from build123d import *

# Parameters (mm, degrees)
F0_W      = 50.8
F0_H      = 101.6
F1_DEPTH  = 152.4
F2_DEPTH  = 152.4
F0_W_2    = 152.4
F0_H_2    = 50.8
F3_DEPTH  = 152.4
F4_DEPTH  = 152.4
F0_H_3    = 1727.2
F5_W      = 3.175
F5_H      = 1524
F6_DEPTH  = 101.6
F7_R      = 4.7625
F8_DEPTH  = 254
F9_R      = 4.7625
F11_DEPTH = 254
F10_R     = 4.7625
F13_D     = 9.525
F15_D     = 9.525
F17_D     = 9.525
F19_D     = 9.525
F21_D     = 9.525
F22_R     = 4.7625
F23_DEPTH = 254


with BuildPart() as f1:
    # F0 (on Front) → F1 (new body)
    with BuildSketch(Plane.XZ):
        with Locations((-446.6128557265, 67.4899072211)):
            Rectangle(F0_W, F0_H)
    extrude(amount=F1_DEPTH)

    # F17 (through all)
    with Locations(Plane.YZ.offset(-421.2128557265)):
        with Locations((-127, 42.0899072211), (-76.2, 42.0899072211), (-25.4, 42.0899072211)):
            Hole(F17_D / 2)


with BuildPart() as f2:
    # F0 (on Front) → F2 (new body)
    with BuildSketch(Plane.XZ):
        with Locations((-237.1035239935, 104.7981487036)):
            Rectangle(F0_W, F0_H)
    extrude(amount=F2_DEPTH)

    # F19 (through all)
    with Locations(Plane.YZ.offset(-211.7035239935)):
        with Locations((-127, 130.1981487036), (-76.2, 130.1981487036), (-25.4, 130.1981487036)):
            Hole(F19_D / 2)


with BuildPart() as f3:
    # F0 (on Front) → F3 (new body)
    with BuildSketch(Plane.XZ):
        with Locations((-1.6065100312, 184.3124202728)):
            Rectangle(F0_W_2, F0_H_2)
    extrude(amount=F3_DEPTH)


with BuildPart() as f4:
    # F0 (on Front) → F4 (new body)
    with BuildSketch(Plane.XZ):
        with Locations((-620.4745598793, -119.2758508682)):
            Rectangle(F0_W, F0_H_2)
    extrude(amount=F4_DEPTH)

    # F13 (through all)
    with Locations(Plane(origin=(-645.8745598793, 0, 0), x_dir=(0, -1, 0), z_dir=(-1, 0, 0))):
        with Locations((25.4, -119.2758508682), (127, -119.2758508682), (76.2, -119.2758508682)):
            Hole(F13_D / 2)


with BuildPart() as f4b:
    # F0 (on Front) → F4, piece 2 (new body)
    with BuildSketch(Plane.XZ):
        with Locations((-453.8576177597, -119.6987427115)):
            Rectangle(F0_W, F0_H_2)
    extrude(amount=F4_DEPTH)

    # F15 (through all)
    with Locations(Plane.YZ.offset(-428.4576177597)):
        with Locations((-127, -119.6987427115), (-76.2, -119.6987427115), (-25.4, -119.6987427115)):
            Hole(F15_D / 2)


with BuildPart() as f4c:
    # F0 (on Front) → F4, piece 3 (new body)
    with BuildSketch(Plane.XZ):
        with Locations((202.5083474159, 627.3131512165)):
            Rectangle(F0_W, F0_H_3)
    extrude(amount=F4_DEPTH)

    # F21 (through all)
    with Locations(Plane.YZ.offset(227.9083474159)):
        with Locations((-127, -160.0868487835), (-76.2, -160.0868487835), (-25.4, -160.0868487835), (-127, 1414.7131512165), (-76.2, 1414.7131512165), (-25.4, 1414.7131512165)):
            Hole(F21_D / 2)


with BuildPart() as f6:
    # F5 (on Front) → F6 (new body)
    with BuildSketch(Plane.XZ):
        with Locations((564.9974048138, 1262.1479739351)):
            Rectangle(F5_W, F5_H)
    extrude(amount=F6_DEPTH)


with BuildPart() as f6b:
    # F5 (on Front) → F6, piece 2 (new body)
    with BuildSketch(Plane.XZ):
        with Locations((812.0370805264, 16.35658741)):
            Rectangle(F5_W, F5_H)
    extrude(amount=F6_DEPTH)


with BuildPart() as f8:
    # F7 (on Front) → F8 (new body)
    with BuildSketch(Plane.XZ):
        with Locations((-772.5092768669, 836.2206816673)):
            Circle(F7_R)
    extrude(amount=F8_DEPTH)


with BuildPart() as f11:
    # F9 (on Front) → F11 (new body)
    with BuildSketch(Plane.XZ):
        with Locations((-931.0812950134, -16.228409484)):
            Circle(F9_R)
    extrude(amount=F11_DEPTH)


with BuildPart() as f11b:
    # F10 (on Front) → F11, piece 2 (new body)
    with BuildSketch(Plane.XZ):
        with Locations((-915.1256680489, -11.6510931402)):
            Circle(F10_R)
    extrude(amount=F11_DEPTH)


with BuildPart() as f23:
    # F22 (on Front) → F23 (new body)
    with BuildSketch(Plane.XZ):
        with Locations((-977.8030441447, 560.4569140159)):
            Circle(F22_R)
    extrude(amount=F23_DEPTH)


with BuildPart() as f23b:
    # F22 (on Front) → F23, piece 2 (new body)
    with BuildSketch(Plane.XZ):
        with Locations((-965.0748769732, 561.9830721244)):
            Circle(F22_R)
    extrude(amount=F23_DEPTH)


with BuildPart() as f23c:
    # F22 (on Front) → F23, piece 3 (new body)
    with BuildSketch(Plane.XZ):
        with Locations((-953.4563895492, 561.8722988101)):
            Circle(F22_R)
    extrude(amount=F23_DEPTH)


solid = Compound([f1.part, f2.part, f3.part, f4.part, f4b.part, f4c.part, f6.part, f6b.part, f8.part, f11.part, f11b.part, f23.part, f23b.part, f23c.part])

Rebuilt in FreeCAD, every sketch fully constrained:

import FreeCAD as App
import Part
import Sketcher
from FreeCAD import Vector
Q = App.Units.Quantity

doc = App.newDocument("Part")
body = doc.addObject("PartDesign::Body", "Body")

# Sketch on XZ plane
sketch1 = body.newObject("Sketcher::SketchObject", "Sketch")
sketch1.AttachmentSupport = (doc.getObject("XZ_Plane"), [""])
sketch1.MapMode = "FlatFace"
sketch1.addGeometry(Part.LineSegment(Vector(-472, 118, 0), Vector(-472, 17, 0)), False)
sketch1.addGeometry(Part.LineSegment(Vector(-472, 17, 0), Vector(-421, 17, 0)), False)
sketch1.addGeometry(Part.LineSegment(Vector(-421, 17, 0), Vector(-421, 118, 0)), False)
sketch1.addGeometry(Part.LineSegment(Vector(-421, 118, 0), Vector(-472, 118, 0)), False)
sketch1.addConstraint(Sketcher.Constraint("Coincident", 0, 2, 1, 1))
sketch1.addConstraint(Sketcher.Constraint("Coincident", 1, 2, 2, 1))
sketch1.addConstraint(Sketcher.Constraint("Coincident", 2, 2, 3, 1))
sketch1.addConstraint(Sketcher.Constraint("Coincident", 3, 2, 0, 1))
sketch1.addConstraint(Sketcher.Constraint("Vertical", 0))
sketch1.addConstraint(Sketcher.Constraint("Horizontal", 1))
sketch1.addConstraint(Sketcher.Constraint("Vertical", 2))
sketch1.addConstraint(Sketcher.Constraint("Horizontal", 3))
sketch1.addConstraint(Sketcher.Constraint("DistanceX", 1, 1, 1, 2, Q("2 in")))
sketch1.addConstraint(Sketcher.Constraint("DistanceY", 0, 2, 0, 1, Q("4 in")))
sketch1.addConstraint(Sketcher.Constraint("DistanceX", 0, 2, -1, 1, 472.012856))
sketch1.addConstraint(Sketcher.Constraint("DistanceY", -1, 1, 0, 2, 16.689907))
pad1 = body.newObject("PartDesign::Pad", "Pad")
pad1.Profile = sketch1
pad1.Length = Q("6 in")

# Sketch on YZ plane
sketch2 = body.newObject("Sketcher::SketchObject", "Sketch001")
sketch2.AttachmentSupport = (doc.getObject("YZ_Plane"), [""])
sketch2.MapMode = "FlatFace"
sketch2.AttachmentOffset = App.Placement(Vector(0, 0, -421.212856), App.Rotation())
sketch2.addGeometry(Part.Circle(Vector(-127, 42.1, 0), Vector(0, 0, 1), 4.8), False)
sketch2.addGeometry(Part.Circle(Vector(-76.2, 42.1, 0), Vector(0, 0, 1), 4.8), False)
sketch2.addGeometry(Part.Circle(Vector(-25.4, 42.1, 0), Vector(0, 0, 1), 4.8), False)
sketch2.addConstraint(Sketcher.Constraint("Equal", 0, 1))
sketch2.addConstraint(Sketcher.Constraint("Equal", 1, 2))
sketch2.addConstraint(Sketcher.Constraint("Horizontal", 0, 3, 1, 3))
sketch2.addConstraint(Sketcher.Constraint("Horizontal", 1, 3, 2, 3))
sketch2.addConstraint(Sketcher.Constraint("Diameter", 0, Q("0.375 in")))
sketch2.addConstraint(Sketcher.Constraint("DistanceX", 0, 3, -1, 1, Q("5 in")))
sketch2.addConstraint(Sketcher.Constraint("DistanceX", 1, 3, -1, 1, Q("3 in")))
sketch2.addConstraint(Sketcher.Constraint("DistanceX", 2, 3, -1, 1, Q("1 in")))
sketch2.addConstraint(Sketcher.Constraint("DistanceY", -1, 1, 0, 3, 42.089907))
doc.recompute()
hole = body.newObject("PartDesign::Hole", "Hole")
hole.Profile = sketch2
hole.ThreadType = "None"
hole.Diameter = Q("0.375 in")
hole.DepthType = "ThroughAll"
body2 = doc.addObject("PartDesign::Body", "Body001")

# Sketch on XZ plane
sketch3 = body2.newObject("Sketcher::SketchObject", "Sketch002")
sketch3.AttachmentSupport = (doc.getObject("XZ_Plane001"), [""])
sketch3.MapMode = "FlatFace"
sketch3.addGeometry(Part.LineSegment(Vector(-263, 156, 0), Vector(-263, 54, 0)), False)
sketch3.addGeometry(Part.LineSegment(Vector(-263, 54, 0), Vector(-212, 54, 0)), False)
sketch3.addGeometry(Part.LineSegment(Vector(-212, 54, 0), Vector(-212, 156, 0)), False)
sketch3.addGeometry(Part.LineSegment(Vector(-212, 156, 0), Vector(-263, 156, 0)), False)
sketch3.addConstraint(Sketcher.Constraint("Coincident", 0, 2, 1, 1))
sketch3.addConstraint(Sketcher.Constraint("Coincident", 1, 2, 2, 1))
sketch3.addConstraint(Sketcher.Constraint("Coincident", 2, 2, 3, 1))
sketch3.addConstraint(Sketcher.Constraint("Coincident", 3, 2, 0, 1))
sketch3.addConstraint(Sketcher.Constraint("Vertical", 0))
sketch3.addConstraint(Sketcher.Constraint("Horizontal", 1))
sketch3.addConstraint(Sketcher.Constraint("Vertical", 2))
sketch3.addConstraint(Sketcher.Constraint("Horizontal", 3))
sketch3.addConstraint(Sketcher.Constraint("DistanceX", 1, 1, 1, 2, Q("2 in")))
sketch3.addConstraint(Sketcher.Constraint("DistanceY", 0, 2, 0, 1, Q("4 in")))
sketch3.addConstraint(Sketcher.Constraint("DistanceY", -1, 1, 0, 2, 53.998149))
sketch3.addConstraint(Sketcher.Constraint("DistanceX", 0, 2, -1, 1, 262.503524))
pad2 = body2.newObject("PartDesign::Pad", "Pad001")
pad2.Profile = sketch3
pad2.Length = Q("6 in")

# Sketch on YZ plane
sketch4 = body2.newObject("Sketcher::SketchObject", "Sketch003")
sketch4.AttachmentSupport = (doc.getObject("YZ_Plane001"), [""])
sketch4.MapMode = "FlatFace"
sketch4.AttachmentOffset = App.Placement(Vector(0, 0, -211.703524), App.Rotation())
sketch4.addGeometry(Part.Circle(Vector(-127, 130.2, 0), Vector(0, 0, 1), 4.8), False)
sketch4.addGeometry(Part.Circle(Vector(-76.2, 130.2, 0), Vector(0, 0, 1), 4.8), False)
sketch4.addGeometry(Part.Circle(Vector(-25.4, 130.2, 0), Vector(0, 0, 1), 4.8), False)
sketch4.addConstraint(Sketcher.Constraint("Equal", 0, 1))
sketch4.addConstraint(Sketcher.Constraint("Equal", 1, 2))
sketch4.addConstraint(Sketcher.Constraint("Horizontal", 0, 3, 1, 3))
sketch4.addConstraint(Sketcher.Constraint("Horizontal", 1, 3, 2, 3))
sketch4.addConstraint(Sketcher.Constraint("Diameter", 0, Q("0.375 in")))
sketch4.addConstraint(Sketcher.Constraint("DistanceX", 0, 3, -1, 1, Q("5 in")))
sketch4.addConstraint(Sketcher.Constraint("DistanceX", 1, 3, -1, 1, Q("3 in")))
sketch4.addConstraint(Sketcher.Constraint("DistanceX", 2, 3, -1, 1, Q("1 in")))
sketch4.addConstraint(Sketcher.Constraint("DistanceY", -1, 1, 0, 3, 130.198149))
doc.recompute()
hole2 = body2.newObject("PartDesign::Hole", "Hole001")
hole2.Profile = sketch4
hole2.ThreadType = "None"
hole2.Diameter = Q("0.375 in")
hole2.DepthType = "ThroughAll"
body3 = doc.addObject("PartDesign::Body", "Body002")

# Sketch on XZ plane
sketch5 = body3.newObject("Sketcher::SketchObject", "Sketch004")
sketch5.AttachmentSupport = (doc.getObject("XZ_Plane002"), [""])
sketch5.MapMode = "FlatFace"
sketch5.addGeometry(Part.LineSegment(Vector(-78, 210, 0), Vector(-78, 159, 0)), False)
sketch5.addGeometry(Part.LineSegment(Vector(-78, 159, 0), Vector(75, 159, 0)), False)
sketch5.addGeometry(Part.LineSegment(Vector(75, 159, 0), Vector(75, 210, 0)), False)
sketch5.addGeometry(Part.LineSegment(Vector(75, 210, 0), Vector(-78, 210, 0)), False)
sketch5.addConstraint(Sketcher.Constraint("Coincident", 0, 2, 1, 1))
sketch5.addConstraint(Sketcher.Constraint("Coincident", 1, 2, 2, 1))
sketch5.addConstraint(Sketcher.Constraint("Coincident", 2, 2, 3, 1))
sketch5.addConstraint(Sketcher.Constraint("Coincident", 3, 2, 0, 1))
sketch5.addConstraint(Sketcher.Constraint("Vertical", 0))
sketch5.addConstraint(Sketcher.Constraint("Horizontal", 1))
sketch5.addConstraint(Sketcher.Constraint("Vertical", 2))
sketch5.addConstraint(Sketcher.Constraint("Horizontal", 3))
sketch5.addConstraint(Sketcher.Constraint("DistanceX", 1, 1, 1, 2, Q("6 in")))
sketch5.addConstraint(Sketcher.Constraint("DistanceY", 0, 2, 0, 1, Q("2 in")))
sketch5.addConstraint(Sketcher.Constraint("DistanceX", 0, 2, -1, 1, 77.80651))
sketch5.addConstraint(Sketcher.Constraint("DistanceY", -1, 1, 0, 2, 158.91242))
pad3 = body3.newObject("PartDesign::Pad", "Pad002")
pad3.Profile = sketch5
pad3.Length = Q("6 in")
body4 = doc.addObject("PartDesign::Body", "Body003")

# Sketch on XZ plane
sketch6 = body4.newObject("Sketcher::SketchObject", "Sketch005")
sketch6.AttachmentSupport = (doc.getObject("XZ_Plane003"), [""])
sketch6.MapMode = "FlatFace"
sketch6.addGeometry(Part.LineSegment(Vector(-646, -94, 0), Vector(-646, -145, 0)), False)
sketch6.addGeometry(Part.LineSegment(Vector(-646, -145, 0), Vector(-595, -145, 0)), False)
sketch6.addGeometry(Part.LineSegment(Vector(-595, -145, 0), Vector(-595, -94, 0)), False)
sketch6.addGeometry(Part.LineSegment(Vector(-595, -94, 0), Vector(-646, -94, 0)), False)
sketch6.addConstraint(Sketcher.Constraint("Coincident", 0, 2, 1, 1))
sketch6.addConstraint(Sketcher.Constraint("Coincident", 1, 2, 2, 1))
sketch6.addConstraint(Sketcher.Constraint("Coincident", 2, 2, 3, 1))
sketch6.addConstraint(Sketcher.Constraint("Coincident", 3, 2, 0, 1))
sketch6.addConstraint(Sketcher.Constraint("Vertical", 0))
sketch6.addConstraint(Sketcher.Constraint("Horizontal", 1))
sketch6.addConstraint(Sketcher.Constraint("Vertical", 2))
sketch6.addConstraint(Sketcher.Constraint("Horizontal", 3))
sketch6.addConstraint(Sketcher.Constraint("Equal", 3, 0))
sketch6.addConstraint(Sketcher.Constraint("DistanceX", 1, 1, 1, 2, Q("2 in")))
sketch6.addConstraint(Sketcher.Constraint("DistanceX", 0, 2, -1, 1, 645.87456))
sketch6.addConstraint(Sketcher.Constraint("DistanceY", 0, 2, -1, 1, 144.675851))
pad4 = body4.newObject("PartDesign::Pad", "Pad003")
pad4.Profile = sketch6
pad4.Length = Q("6 in")

# Sketch on YZ plane
sketch7 = body4.newObject("Sketcher::SketchObject", "Sketch006")
sketch7.AttachmentSupport = (doc.getObject("YZ_Plane003"), [""])
sketch7.MapMode = "FlatFace"
sketch7.AttachmentOffset = App.Placement(Vector(0, 0, -645.87456), App.Rotation())
sketch7.addGeometry(Part.Circle(Vector(-25.4, -119.3, 0), Vector(0, 0, 1), 4.8), False)
sketch7.addGeometry(Part.Circle(Vector(-127, -119.3, 0), Vector(0, 0, 1), 4.8), False)
sketch7.addGeometry(Part.Circle(Vector(-76.2, -119.3, 0), Vector(0, 0, 1), 4.8), False)
sketch7.addConstraint(Sketcher.Constraint("Equal", 0, 1))
sketch7.addConstraint(Sketcher.Constraint("Equal", 1, 2))
sketch7.addConstraint(Sketcher.Constraint("Horizontal", 0, 3, 1, 3))
sketch7.addConstraint(Sketcher.Constraint("Horizontal", 1, 3, 2, 3))
sketch7.addConstraint(Sketcher.Constraint("Diameter", 0, Q("0.375 in")))
sketch7.addConstraint(Sketcher.Constraint("DistanceX", 0, 3, -1, 1, Q("1 in")))
sketch7.addConstraint(Sketcher.Constraint("DistanceX", 1, 3, -1, 1, Q("5 in")))
sketch7.addConstraint(Sketcher.Constraint("DistanceX", 2, 3, -1, 1, Q("3 in")))
sketch7.addConstraint(Sketcher.Constraint("DistanceY", 0, 3, -1, 1, 119.275851))
doc.recompute()
hole3 = body4.newObject("PartDesign::Hole", "Hole002")
hole3.Profile = sketch7
hole3.ThreadType = "None"
hole3.Diameter = Q("0.375 in")
hole3.DepthType = "ThroughAll"
hole3.Reversed = True
body5 = doc.addObject("PartDesign::Body", "Body004")

# Sketch on XZ plane
sketch8 = body5.newObject("Sketcher::SketchObject", "Sketch007")
sketch8.AttachmentSupport = (doc.getObject("XZ_Plane004"), [""])
sketch8.MapMode = "FlatFace"
sketch8.addGeometry(Part.LineSegment(Vector(-479, -94, 0), Vector(-479, -145, 0)), False)
sketch8.addGeometry(Part.LineSegment(Vector(-479, -145, 0), Vector(-428, -145, 0)), False)
sketch8.addGeometry(Part.LineSegment(Vector(-428, -145, 0), Vector(-428, -94, 0)), False)
sketch8.addGeometry(Part.LineSegment(Vector(-428, -94, 0), Vector(-479, -94, 0)), False)
sketch8.addConstraint(Sketcher.Constraint("Coincident", 0, 2, 1, 1))
sketch8.addConstraint(Sketcher.Constraint("Coincident", 1, 2, 2, 1))
sketch8.addConstraint(Sketcher.Constraint("Coincident", 2, 2, 3, 1))
sketch8.addConstraint(Sketcher.Constraint("Coincident", 3, 2, 0, 1))
sketch8.addConstraint(Sketcher.Constraint("Vertical", 0))
sketch8.addConstraint(Sketcher.Constraint("Horizontal", 1))
sketch8.addConstraint(Sketcher.Constraint("Vertical", 2))
sketch8.addConstraint(Sketcher.Constraint("Horizontal", 3))
sketch8.addConstraint(Sketcher.Constraint("Equal", 3, 0))
sketch8.addConstraint(Sketcher.Constraint("DistanceX", 1, 1, 1, 2, Q("2 in")))
sketch8.addConstraint(Sketcher.Constraint("DistanceX", 0, 2, -1, 1, 479.257618))
sketch8.addConstraint(Sketcher.Constraint("DistanceY", 0, 2, -1, 1, 145.098743))
pad5 = body5.newObject("PartDesign::Pad", "Pad004")
pad5.Profile = sketch8
pad5.Length = Q("6 in")

# Sketch on YZ plane
sketch9 = body5.newObject("Sketcher::SketchObject", "Sketch008")
sketch9.AttachmentSupport = (doc.getObject("YZ_Plane004"), [""])
sketch9.MapMode = "FlatFace"
sketch9.AttachmentOffset = App.Placement(Vector(0, 0, -428.457618), App.Rotation())
sketch9.addGeometry(Part.Circle(Vector(-127, -119.7, 0), Vector(0, 0, 1), 4.8), False)
sketch9.addGeometry(Part.Circle(Vector(-76.2, -119.7, 0), Vector(0, 0, 1), 4.8), False)
sketch9.addGeometry(Part.Circle(Vector(-25.4, -119.7, 0), Vector(0, 0, 1), 4.8), False)
sketch9.addConstraint(Sketcher.Constraint("Equal", 0, 1))
sketch9.addConstraint(Sketcher.Constraint("Equal", 1, 2))
sketch9.addConstraint(Sketcher.Constraint("Horizontal", 0, 3, 1, 3))
sketch9.addConstraint(Sketcher.Constraint("Horizontal", 1, 3, 2, 3))
sketch9.addConstraint(Sketcher.Constraint("Diameter", 0, Q("0.375 in")))
sketch9.addConstraint(Sketcher.Constraint("DistanceX", 0, 3, -1, 1, Q("5 in")))
sketch9.addConstraint(Sketcher.Constraint("DistanceX", 1, 3, -1, 1, Q("3 in")))
sketch9.addConstraint(Sketcher.Constraint("DistanceX", 2, 3, -1, 1, Q("1 in")))
sketch9.addConstraint(Sketcher.Constraint("DistanceY", 0, 3, -1, 1, 119.698743))
doc.recompute()
hole4 = body5.newObject("PartDesign::Hole", "Hole003")
hole4.Profile = sketch9
hole4.ThreadType = "None"
hole4.Diameter = Q("0.375 in")
hole4.DepthType = "ThroughAll"
body6 = doc.addObject("PartDesign::Body", "Body005")

# Sketch on XZ plane
sketch10 = body6.newObject("Sketcher::SketchObject", "Sketch009")
sketch10.AttachmentSupport = (doc.getObject("XZ_Plane005"), [""])
sketch10.MapMode = "FlatFace"
sketch10.addGeometry(Part.LineSegment(Vector(177, 1491, 0), Vector(177, -236, 0)), False)
sketch10.addGeometry(Part.LineSegment(Vector(177, -236, 0), Vector(228, -236, 0)), False)
sketch10.addGeometry(Part.LineSegment(Vector(228, -236, 0), Vector(228, 1491, 0)), False)
sketch10.addGeometry(Part.LineSegment(Vector(228, 1491, 0), Vector(177, 1491, 0)), False)
sketch10.addConstraint(Sketcher.Constraint("Coincident", 0, 2, 1, 1))
sketch10.addConstraint(Sketcher.Constraint("Coincident", 1, 2, 2, 1))
sketch10.addConstraint(Sketcher.Constraint("Coincident", 2, 2, 3, 1))
sketch10.addConstraint(Sketcher.Constraint("Coincident", 3, 2, 0, 1))
sketch10.addConstraint(Sketcher.Constraint("Vertical", 0))
sketch10.addConstraint(Sketcher.Constraint("Horizontal", 1))
sketch10.addConstraint(Sketcher.Constraint("Vertical", 2))
sketch10.addConstraint(Sketcher.Constraint("Horizontal", 3))
sketch10.addConstraint(Sketcher.Constraint("DistanceX", 1, 1, 1, 2, Q("2 in")))
sketch10.addConstraint(Sketcher.Constraint("DistanceY", 0, 2, 0, 1, Q("68 in")))
sketch10.addConstraint(Sketcher.Constraint("DistanceY", 0, 2, -1, 1, 236.286849))
sketch10.addConstraint(Sketcher.Constraint("DistanceX", -1, 1, 0, 2, 177.108347))
pad6 = body6.newObject("PartDesign::Pad", "Pad005")
pad6.Profile = sketch10
pad6.Length = Q("6 in")

# Sketch on YZ plane
sketch11 = body6.newObject("Sketcher::SketchObject", "Sketch010")
sketch11.AttachmentSupport = (doc.getObject("YZ_Plane005"), [""])
sketch11.MapMode = "FlatFace"
sketch11.AttachmentOffset = App.Placement(Vector(0, 0, 227.908347), App.Rotation())
sketch11.addGeometry(Part.Circle(Vector(-127, -160.1, 0), Vector(0, 0, 1), 4.8), False)
sketch11.addGeometry(Part.Circle(Vector(-76.2, -160.1, 0), Vector(0, 0, 1), 4.8), False)
sketch11.addGeometry(Part.Circle(Vector(-25.4, -160.1, 0), Vector(0, 0, 1), 4.8), False)
sketch11.addGeometry(Part.Circle(Vector(-127, 1414.7, 0), Vector(0, 0, 1), 4.8), False)
sketch11.addGeometry(Part.Circle(Vector(-76.2, 1414.7, 0), Vector(0, 0, 1), 4.8), False)
sketch11.addGeometry(Part.Circle(Vector(-25.4, 1414.7, 0), Vector(0, 0, 1), 4.8), False)
sketch11.addConstraint(Sketcher.Constraint("Equal", 0, 1))
sketch11.addConstraint(Sketcher.Constraint("Equal", 1, 2))
sketch11.addConstraint(Sketcher.Constraint("Equal", 2, 3))
sketch11.addConstraint(Sketcher.Constraint("Equal", 3, 4))
sketch11.addConstraint(Sketcher.Constraint("Equal", 4, 5))
sketch11.addConstraint(Sketcher.Constraint("Horizontal", 0, 3, 1, 3))
sketch11.addConstraint(Sketcher.Constraint("Horizontal", 1, 3, 2, 3))
sketch11.addConstraint(Sketcher.Constraint("Horizontal", 3, 3, 4, 3))
sketch11.addConstraint(Sketcher.Constraint("Horizontal", 4, 3, 5, 3))
sketch11.addConstraint(Sketcher.Constraint("Vertical", 0, 3, 3, 3))
sketch11.addConstraint(Sketcher.Constraint("Vertical", 1, 3, 4, 3))
sketch11.addConstraint(Sketcher.Constraint("Vertical", 2, 3, 5, 3))
sketch11.addConstraint(Sketcher.Constraint("Diameter", 0, Q("0.375 in")))
sketch11.addConstraint(Sketcher.Constraint("DistanceX", 0, 3, -1, 1, Q("5 in")))
sketch11.addConstraint(Sketcher.Constraint("DistanceX", 1, 3, -1, 1, Q("3 in")))
sketch11.addConstraint(Sketcher.Constraint("DistanceX", 2, 3, -1, 1, Q("1 in")))
sketch11.addConstraint(Sketcher.Constraint("DistanceY", 0, 3, 3, 3, Q("62 in")))
sketch11.addConstraint(Sketcher.Constraint("DistanceY", 0, 3, -1, 1, 160.086849))
doc.recompute()
hole5 = body6.newObject("PartDesign::Hole", "Hole004")
hole5.Profile = sketch11
hole5.ThreadType = "None"
hole5.Diameter = Q("0.375 in")
hole5.DepthType = "ThroughAll"
body7 = doc.addObject("PartDesign::Body", "Body006")

# Sketch on XZ plane
sketch12 = body7.newObject("Sketcher::SketchObject", "Sketch011")
sketch12.AttachmentSupport = (doc.getObject("XZ_Plane006"), [""])
sketch12.MapMode = "FlatFace"
sketch12.addGeometry(Part.LineSegment(Vector(563.4, 2024.1, 0), Vector(563.4, 500.1, 0)), False)
sketch12.addGeometry(Part.LineSegment(Vector(563.4, 500.1, 0), Vector(566.6, 500.1, 0)), False)
sketch12.addGeometry(Part.LineSegment(Vector(566.6, 500.1, 0), Vector(566.6, 2024.1, 0)), False)
sketch12.addGeometry(Part.LineSegment(Vector(566.6, 2024.1, 0), Vector(563.4, 2024.1, 0)), False)
sketch12.addConstraint(Sketcher.Constraint("Coincident", 0, 2, 1, 1))
sketch12.addConstraint(Sketcher.Constraint("Coincident", 1, 2, 2, 1))
sketch12.addConstraint(Sketcher.Constraint("Coincident", 2, 2, 3, 1))
sketch12.addConstraint(Sketcher.Constraint("Coincident", 3, 2, 0, 1))
sketch12.addConstraint(Sketcher.Constraint("Vertical", 0))
sketch12.addConstraint(Sketcher.Constraint("Horizontal", 1))
sketch12.addConstraint(Sketcher.Constraint("Vertical", 2))
sketch12.addConstraint(Sketcher.Constraint("Horizontal", 3))
sketch12.addConstraint(Sketcher.Constraint("DistanceY", 0, 2, 0, 1, Q("60 in")))
sketch12.addConstraint(Sketcher.Constraint("DistanceX", 1, 1, 1, 2, Q("0.125 in")))
sketch12.addConstraint(Sketcher.Constraint("DistanceX", -1, 1, 0, 2, 563.409905))
sketch12.addConstraint(Sketcher.Constraint("DistanceY", -1, 1, 0, 2, 500.147974))
pad7 = body7.newObject("PartDesign::Pad", "Pad006")
pad7.Profile = sketch12
pad7.Length = Q("4 in")
body8 = doc.addObject("PartDesign::Body", "Body007")

# Sketch on XZ plane
sketch13 = body8.newObject("Sketcher::SketchObject", "Sketch012")
sketch13.AttachmentSupport = (doc.getObject("XZ_Plane007"), [""])
sketch13.MapMode = "FlatFace"
sketch13.addGeometry(Part.LineSegment(Vector(810.4, 778.4, 0), Vector(810.4, -745.6, 0)), False)
sketch13.addGeometry(Part.LineSegment(Vector(810.4, -745.6, 0), Vector(813.6, -745.6, 0)), False)
sketch13.addGeometry(Part.LineSegment(Vector(813.6, -745.6, 0), Vector(813.6, 778.4, 0)), False)
sketch13.addGeometry(Part.LineSegment(Vector(813.6, 778.4, 0), Vector(810.4, 778.4, 0)), False)
sketch13.addConstraint(Sketcher.Constraint("Coincident", 0, 2, 1, 1))
sketch13.addConstraint(Sketcher.Constraint("Coincident", 1, 2, 2, 1))
sketch13.addConstraint(Sketcher.Constraint("Coincident", 2, 2, 3, 1))
sketch13.addConstraint(Sketcher.Constraint("Coincident", 3, 2, 0, 1))
sketch13.addConstraint(Sketcher.Constraint("Vertical", 0))
sketch13.addConstraint(Sketcher.Constraint("Horizontal", 1))
sketch13.addConstraint(Sketcher.Constraint("Vertical", 2))
sketch13.addConstraint(Sketcher.Constraint("Horizontal", 3))
sketch13.addConstraint(Sketcher.Constraint("DistanceY", 0, 2, 0, 1, Q("60 in")))
sketch13.addConstraint(Sketcher.Constraint("DistanceX", 1, 1, 1, 2, Q("0.125 in")))
sketch13.addConstraint(Sketcher.Constraint("DistanceX", -1, 1, 0, 2, 810.449581))
sketch13.addConstraint(Sketcher.Constraint("DistanceY", 0, 2, -1, 1, 745.643413))
pad8 = body8.newObject("PartDesign::Pad", "Pad007")
pad8.Profile = sketch13
pad8.Length = Q("4 in")
body9 = doc.addObject("PartDesign::Body", "Body008")

# Sketch on XZ plane
sketch14 = body9.newObject("Sketcher::SketchObject", "Sketch013")
sketch14.AttachmentSupport = (doc.getObject("XZ_Plane008"), [""])
sketch14.MapMode = "FlatFace"
sketch14.addGeometry(Part.Circle(Vector(-772.5, 836.2, 0), Vector(0, 0, 1), 4.8), False)
sketch14.addConstraint(Sketcher.Constraint("Diameter", 0, Q("0.375 in")))
sketch14.addConstraint(Sketcher.Constraint("DistanceY", -1, 1, 0, 3, 836.220682))
sketch14.addConstraint(Sketcher.Constraint("DistanceX", 0, 3, -1, 1, 772.509277))
pad9 = body9.newObject("PartDesign::Pad", "Pad008")
pad9.Profile = sketch14
pad9.Length = Q("10 in")
body10 = doc.addObject("PartDesign::Body", "Body009")

# Sketch on XZ plane
sketch15 = body10.newObject("Sketcher::SketchObject", "Sketch014")
sketch15.AttachmentSupport = (doc.getObject("XZ_Plane009"), [""])
sketch15.MapMode = "FlatFace"
sketch15.addGeometry(Part.Circle(Vector(-931.1, -16.2, 0), Vector(0, 0, 1), 4.8), False)
sketch15.addConstraint(Sketcher.Constraint("Diameter", 0, Q("0.375 in")))
sketch15.addConstraint(Sketcher.Constraint("DistanceY", 0, 3, -1, 1, 16.228409))
sketch15.addConstraint(Sketcher.Constraint("DistanceX", 0, 3, -1, 1, 931.081295))
pad10 = body10.newObject("PartDesign::Pad", "Pad009")
pad10.Profile = sketch15
pad10.Length = Q("10 in")
body11 = doc.addObject("PartDesign::Body", "Body010")

# Sketch on XZ plane
sketch16 = body11.newObject("Sketcher::SketchObject", "Sketch015")
sketch16.AttachmentSupport = (doc.getObject("XZ_Plane010"), [""])
sketch16.MapMode = "FlatFace"
sketch16.addGeometry(Part.Circle(Vector(-915.1, -11.7, 0), Vector(0, 0, 1), 4.8), False)
sketch16.addConstraint(Sketcher.Constraint("Diameter", 0, Q("0.375 in")))
sketch16.addConstraint(Sketcher.Constraint("DistanceX", 0, 3, -1, 1, 915.125668))
sketch16.addConstraint(Sketcher.Constraint("DistanceY", 0, 3, -1, 1, 11.651093))
pad11 = body11.newObject("PartDesign::Pad", "Pad010")
pad11.Profile = sketch16
pad11.Length = Q("10 in")
body12 = doc.addObject("PartDesign::Body", "Body011")

# Sketch on XZ plane
sketch17 = body12.newObject("Sketcher::SketchObject", "Sketch016")
sketch17.AttachmentSupport = (doc.getObject("XZ_Plane011"), [""])
sketch17.MapMode = "FlatFace"
sketch17.addGeometry(Part.Circle(Vector(-977.8, 560.5, 0), Vector(0, 0, 1), 4.8), False)
sketch17.addConstraint(Sketcher.Constraint("Diameter", 0, Q("0.375 in")))
sketch17.addConstraint(Sketcher.Constraint("DistanceX", 0, 3, -1, 1, 977.803044))
sketch17.addConstraint(Sketcher.Constraint("DistanceY", -1, 1, 0, 3, 560.456914))
pad12 = body12.newObject("PartDesign::Pad", "Pad011")
pad12.Profile = sketch17
pad12.Length = Q("10 in")
body13 = doc.addObject("PartDesign::Body", "Body012")

# Sketch on XZ plane
sketch18 = body13.newObject("Sketcher::SketchObject", "Sketch017")
sketch18.AttachmentSupport = (doc.getObject("XZ_Plane012"), [""])
sketch18.MapMode = "FlatFace"
sketch18.addGeometry(Part.Circle(Vector(-965.1, 562, 0), Vector(0, 0, 1), 4.8), False)
sketch18.addConstraint(Sketcher.Constraint("Diameter", 0, Q("0.375 in")))
sketch18.addConstraint(Sketcher.Constraint("DistanceX", 0, 3, -1, 1, 965.074877))
sketch18.addConstraint(Sketcher.Constraint("DistanceY", -1, 1, 0, 3, 561.983072))
pad13 = body13.newObject("PartDesign::Pad", "Pad012")
pad13.Profile = sketch18
pad13.Length = Q("10 in")
body14 = doc.addObject("PartDesign::Body", "Body013")

# Sketch on XZ plane
sketch19 = body14.newObject("Sketcher::SketchObject", "Sketch018")
sketch19.AttachmentSupport = (doc.getObject("XZ_Plane013"), [""])
sketch19.MapMode = "FlatFace"
sketch19.addGeometry(Part.Circle(Vector(-953.5, 561.9, 0), Vector(0, 0, 1), 4.8), False)
sketch19.addConstraint(Sketcher.Constraint("Diameter", 0, Q("0.375 in")))
sketch19.addConstraint(Sketcher.Constraint("DistanceY", -1, 1, 0, 3, 561.872299))
sketch19.addConstraint(Sketcher.Constraint("DistanceX", 0, 3, -1, 1, 953.45639))
pad14 = body14.newObject("PartDesign::Pad", "Pad013")
pad14.Profile = sketch19
pad14.Length = Q("10 in")

doc.recompute()
